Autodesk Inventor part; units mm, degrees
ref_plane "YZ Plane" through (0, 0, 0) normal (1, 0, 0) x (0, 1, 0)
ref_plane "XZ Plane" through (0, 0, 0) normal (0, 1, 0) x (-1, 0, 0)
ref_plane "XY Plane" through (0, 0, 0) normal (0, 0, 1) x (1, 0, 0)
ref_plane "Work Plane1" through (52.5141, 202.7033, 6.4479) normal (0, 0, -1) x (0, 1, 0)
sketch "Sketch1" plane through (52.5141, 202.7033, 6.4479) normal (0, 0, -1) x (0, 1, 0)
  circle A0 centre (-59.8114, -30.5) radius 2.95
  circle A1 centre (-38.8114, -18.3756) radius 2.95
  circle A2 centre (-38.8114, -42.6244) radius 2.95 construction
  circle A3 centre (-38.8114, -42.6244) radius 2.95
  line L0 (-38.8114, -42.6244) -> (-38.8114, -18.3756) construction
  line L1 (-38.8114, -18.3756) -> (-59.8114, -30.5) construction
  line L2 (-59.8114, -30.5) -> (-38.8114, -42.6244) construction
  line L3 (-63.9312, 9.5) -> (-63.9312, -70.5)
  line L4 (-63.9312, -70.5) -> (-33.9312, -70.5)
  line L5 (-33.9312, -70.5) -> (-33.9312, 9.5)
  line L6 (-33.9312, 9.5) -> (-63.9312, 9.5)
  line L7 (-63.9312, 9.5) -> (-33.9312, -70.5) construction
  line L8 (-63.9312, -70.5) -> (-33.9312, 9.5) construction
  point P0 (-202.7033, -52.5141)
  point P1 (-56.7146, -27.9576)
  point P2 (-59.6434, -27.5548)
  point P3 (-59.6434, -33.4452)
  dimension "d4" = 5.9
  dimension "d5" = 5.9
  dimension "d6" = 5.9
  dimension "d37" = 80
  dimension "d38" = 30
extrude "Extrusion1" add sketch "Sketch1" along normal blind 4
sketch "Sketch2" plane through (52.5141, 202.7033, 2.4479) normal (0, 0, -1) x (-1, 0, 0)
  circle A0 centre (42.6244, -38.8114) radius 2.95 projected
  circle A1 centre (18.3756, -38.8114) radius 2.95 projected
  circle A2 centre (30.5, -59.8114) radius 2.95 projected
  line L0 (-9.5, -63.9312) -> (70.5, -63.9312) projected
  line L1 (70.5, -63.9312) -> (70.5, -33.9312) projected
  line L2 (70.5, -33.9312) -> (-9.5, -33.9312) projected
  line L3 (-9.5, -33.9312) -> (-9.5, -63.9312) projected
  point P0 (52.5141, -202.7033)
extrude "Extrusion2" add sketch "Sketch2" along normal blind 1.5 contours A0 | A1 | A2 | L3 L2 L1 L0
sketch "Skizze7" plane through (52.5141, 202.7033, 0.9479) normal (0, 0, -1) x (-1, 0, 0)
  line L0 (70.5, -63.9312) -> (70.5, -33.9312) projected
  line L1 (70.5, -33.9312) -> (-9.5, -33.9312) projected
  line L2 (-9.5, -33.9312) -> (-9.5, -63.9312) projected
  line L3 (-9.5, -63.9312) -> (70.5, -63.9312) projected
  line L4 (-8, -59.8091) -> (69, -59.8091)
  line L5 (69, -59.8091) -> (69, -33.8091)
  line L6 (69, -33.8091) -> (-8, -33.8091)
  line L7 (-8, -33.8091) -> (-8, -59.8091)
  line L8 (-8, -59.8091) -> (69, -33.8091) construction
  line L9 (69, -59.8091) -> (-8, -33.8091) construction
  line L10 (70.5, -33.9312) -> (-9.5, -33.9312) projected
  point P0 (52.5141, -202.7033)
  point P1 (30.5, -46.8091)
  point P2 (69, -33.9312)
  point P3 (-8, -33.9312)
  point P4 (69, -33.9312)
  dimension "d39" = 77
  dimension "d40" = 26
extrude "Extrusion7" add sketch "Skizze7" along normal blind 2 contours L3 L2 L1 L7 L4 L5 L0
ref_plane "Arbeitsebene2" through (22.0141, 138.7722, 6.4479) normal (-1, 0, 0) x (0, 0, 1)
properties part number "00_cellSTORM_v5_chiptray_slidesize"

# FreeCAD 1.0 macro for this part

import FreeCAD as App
import Part
import Sketcher

V = App.Vector


def add_polygon(sketch, points):
    """Adds a closed chain of lines whose ends are joined by coincident constraints."""
    first, n = sketch.GeometryCount, len(points)
    for a, b in zip(points, points[1:] + points[:1]):
        sketch.addGeometry(Part.LineSegment(App.Vector(*a, 0), App.Vector(*b, 0)), False)
    for i in range(n):
        sketch.addConstraint(Sketcher.Constraint("Coincident", first + i, 2, first + (i + 1) % n, 1))

doc = App.newDocument("Part")
body = doc.addObject("PartDesign::Body", "Body")

sketch1 = body.newObject("Sketcher::SketchObject", "Sketch")
sketch1.AttachmentSupport = (doc.getObject("XY_Plane"), [""])
sketch1.MapMode = "FlatFace"
sketch1.AttachmentOffset = App.Placement(V(0, 0, 6.4479), App.Rotation())
add_polygon(sketch1, [(62, 168.8), (62, 138.8), (-18, 138.8), (-18, 168.8)])
sketch1.addGeometry(Part.Circle(V(9.9, 163.9, 0), V(0, 0, 1), 3), False)
sketch1.addGeometry(Part.Circle(V(22, 142.9, 0), V(0, 0, 1), 3), False)
sketch1.addGeometry(Part.Circle(V(34.1, 163.9, 0), V(0, 0, 1), 3), False)
sketch1.addConstraint([
    Sketcher.Constraint("Vertical", 0),
    Sketcher.Constraint("Horizontal", 1),
    Sketcher.Constraint("Vertical", 2),
    Sketcher.Constraint("Horizontal", 3),
    Sketcher.Constraint("Equal", 4, 5),
    Sketcher.Constraint("Equal", 5, 6),
    Sketcher.Constraint("Horizontal", 4, 3, 6, 3),
    Sketcher.Constraint("Diameter", 4, 5.9),
    Sketcher.Constraint("DistanceX", 1, 2, 1, 1, 80.0),
    Sketcher.Constraint("DistanceY", 0, 2, 0, 1, 30.0),
    Sketcher.Constraint("DistanceY", 5, 3, 4, 3, 21.0),
    Sketcher.Constraint("DistanceX", 5, 3, 0, 2, 40.0),
    Sketcher.Constraint("DistanceY", -1, 1, 4, 3, 163.892),
    Sketcher.Constraint("DistanceX", -1, 1, 5, 3, 22.014),
    Sketcher.Constraint("DistanceY", -1, 1, 0, 2, 138.772),
    Sketcher.Constraint("DistanceX", -1, 1, 4, 3, 9.8897),
    Sketcher.Constraint("DistanceX", -1, 1, 6, 3, 34.1385),
])
pad1 = body.newObject("PartDesign::Pad", "Pad")
pad1.Profile = sketch1
pad1.Length = 4
pad1.Reversed = True

sketch2 = body.newObject("Sketcher::SketchObject", "Sketch001")
sketch2.AttachmentSupport = (doc.getObject("XY_Plane"), [""])
sketch2.MapMode = "FlatFace"
sketch2.AttachmentOffset = App.Placement(V(0, 0, 2.4479), App.Rotation())
add_polygon(sketch2, [(62, 169), (62, 139), (-18, 139), (-18, 169)])
sketch2.addConstraint([
    Sketcher.Constraint("Vertical", 0),
    Sketcher.Constraint("Horizontal", 1),
    Sketcher.Constraint("Vertical", 2),
    Sketcher.Constraint("Horizontal", 3),
    Sketcher.Constraint("DistanceX", 1, 2, 1, 1, 80.0),
    Sketcher.Constraint("DistanceY", 0, 2, 0, 1, 30.0),
    Sketcher.Constraint("DistanceX", -1, 1, 0, 2, 62.014),
    Sketcher.Constraint("DistanceY", -1, 1, 0, 2, 138.772),
])
pad2 = body.newObject("PartDesign::Pad", "Pad001")
pad2.Profile = sketch2
pad2.Length = 1.5
pad2.Reversed = True

sketch3 = body.newObject("Sketcher::SketchObject", "Sketch002")
sketch3.AttachmentSupport = (doc.getObject("XY_Plane"), [""])
sketch3.MapMode = "FlatFace"
sketch3.AttachmentOffset = App.Placement(V(0, 0, 0.9479), App.Rotation())
add_polygon(sketch3, [(62, 138.8), (-18, 138.8), (-18, 168.8), (-16.5, 168.8), (-16.5, 142.9), (60.5, 142.9), (60.5, 168.8), (62, 168.8)])
sketch3.addConstraint([
    Sketcher.Constraint("Horizontal", 0),
    Sketcher.Constraint("Vertical", 1),
    Sketcher.Constraint("Horizontal", 2),
    Sketcher.Constraint("Vertical", 3),
    Sketcher.Constraint("Horizontal", 4),
    Sketcher.Constraint("Vertical", 5),
    Sketcher.Constraint("Horizontal", 6),
    Sketcher.Constraint("Vertical", 7),
    Sketcher.Constraint("Horizontal", 2, 2, 5, 2),
    Sketcher.Constraint("Equal", 2, 6),
    Sketcher.Constraint("DistanceX", 4, 1, 4, 2, 77.0),
    Sketcher.Constraint("DistanceX", 0, 2, 0, 1, 80.0),
    Sketcher.Constraint("DistanceY", 1, 1, 1, 2, 30.0),
    Sketcher.Constraint("DistanceY", 3, 2, 3, 1, 25.878),
    Sketcher.Constraint("DistanceX", 0, 2, -1, 1, 17.986),
    Sketcher.Constraint("DistanceY", -1, 1, 0, 2, 138.772),
])
pad3 = body.newObject("PartDesign::Pad", "Pad002")
pad3.Profile = sketch3
pad3.Length = 2
pad3.Reversed = True

doc.recompute()
